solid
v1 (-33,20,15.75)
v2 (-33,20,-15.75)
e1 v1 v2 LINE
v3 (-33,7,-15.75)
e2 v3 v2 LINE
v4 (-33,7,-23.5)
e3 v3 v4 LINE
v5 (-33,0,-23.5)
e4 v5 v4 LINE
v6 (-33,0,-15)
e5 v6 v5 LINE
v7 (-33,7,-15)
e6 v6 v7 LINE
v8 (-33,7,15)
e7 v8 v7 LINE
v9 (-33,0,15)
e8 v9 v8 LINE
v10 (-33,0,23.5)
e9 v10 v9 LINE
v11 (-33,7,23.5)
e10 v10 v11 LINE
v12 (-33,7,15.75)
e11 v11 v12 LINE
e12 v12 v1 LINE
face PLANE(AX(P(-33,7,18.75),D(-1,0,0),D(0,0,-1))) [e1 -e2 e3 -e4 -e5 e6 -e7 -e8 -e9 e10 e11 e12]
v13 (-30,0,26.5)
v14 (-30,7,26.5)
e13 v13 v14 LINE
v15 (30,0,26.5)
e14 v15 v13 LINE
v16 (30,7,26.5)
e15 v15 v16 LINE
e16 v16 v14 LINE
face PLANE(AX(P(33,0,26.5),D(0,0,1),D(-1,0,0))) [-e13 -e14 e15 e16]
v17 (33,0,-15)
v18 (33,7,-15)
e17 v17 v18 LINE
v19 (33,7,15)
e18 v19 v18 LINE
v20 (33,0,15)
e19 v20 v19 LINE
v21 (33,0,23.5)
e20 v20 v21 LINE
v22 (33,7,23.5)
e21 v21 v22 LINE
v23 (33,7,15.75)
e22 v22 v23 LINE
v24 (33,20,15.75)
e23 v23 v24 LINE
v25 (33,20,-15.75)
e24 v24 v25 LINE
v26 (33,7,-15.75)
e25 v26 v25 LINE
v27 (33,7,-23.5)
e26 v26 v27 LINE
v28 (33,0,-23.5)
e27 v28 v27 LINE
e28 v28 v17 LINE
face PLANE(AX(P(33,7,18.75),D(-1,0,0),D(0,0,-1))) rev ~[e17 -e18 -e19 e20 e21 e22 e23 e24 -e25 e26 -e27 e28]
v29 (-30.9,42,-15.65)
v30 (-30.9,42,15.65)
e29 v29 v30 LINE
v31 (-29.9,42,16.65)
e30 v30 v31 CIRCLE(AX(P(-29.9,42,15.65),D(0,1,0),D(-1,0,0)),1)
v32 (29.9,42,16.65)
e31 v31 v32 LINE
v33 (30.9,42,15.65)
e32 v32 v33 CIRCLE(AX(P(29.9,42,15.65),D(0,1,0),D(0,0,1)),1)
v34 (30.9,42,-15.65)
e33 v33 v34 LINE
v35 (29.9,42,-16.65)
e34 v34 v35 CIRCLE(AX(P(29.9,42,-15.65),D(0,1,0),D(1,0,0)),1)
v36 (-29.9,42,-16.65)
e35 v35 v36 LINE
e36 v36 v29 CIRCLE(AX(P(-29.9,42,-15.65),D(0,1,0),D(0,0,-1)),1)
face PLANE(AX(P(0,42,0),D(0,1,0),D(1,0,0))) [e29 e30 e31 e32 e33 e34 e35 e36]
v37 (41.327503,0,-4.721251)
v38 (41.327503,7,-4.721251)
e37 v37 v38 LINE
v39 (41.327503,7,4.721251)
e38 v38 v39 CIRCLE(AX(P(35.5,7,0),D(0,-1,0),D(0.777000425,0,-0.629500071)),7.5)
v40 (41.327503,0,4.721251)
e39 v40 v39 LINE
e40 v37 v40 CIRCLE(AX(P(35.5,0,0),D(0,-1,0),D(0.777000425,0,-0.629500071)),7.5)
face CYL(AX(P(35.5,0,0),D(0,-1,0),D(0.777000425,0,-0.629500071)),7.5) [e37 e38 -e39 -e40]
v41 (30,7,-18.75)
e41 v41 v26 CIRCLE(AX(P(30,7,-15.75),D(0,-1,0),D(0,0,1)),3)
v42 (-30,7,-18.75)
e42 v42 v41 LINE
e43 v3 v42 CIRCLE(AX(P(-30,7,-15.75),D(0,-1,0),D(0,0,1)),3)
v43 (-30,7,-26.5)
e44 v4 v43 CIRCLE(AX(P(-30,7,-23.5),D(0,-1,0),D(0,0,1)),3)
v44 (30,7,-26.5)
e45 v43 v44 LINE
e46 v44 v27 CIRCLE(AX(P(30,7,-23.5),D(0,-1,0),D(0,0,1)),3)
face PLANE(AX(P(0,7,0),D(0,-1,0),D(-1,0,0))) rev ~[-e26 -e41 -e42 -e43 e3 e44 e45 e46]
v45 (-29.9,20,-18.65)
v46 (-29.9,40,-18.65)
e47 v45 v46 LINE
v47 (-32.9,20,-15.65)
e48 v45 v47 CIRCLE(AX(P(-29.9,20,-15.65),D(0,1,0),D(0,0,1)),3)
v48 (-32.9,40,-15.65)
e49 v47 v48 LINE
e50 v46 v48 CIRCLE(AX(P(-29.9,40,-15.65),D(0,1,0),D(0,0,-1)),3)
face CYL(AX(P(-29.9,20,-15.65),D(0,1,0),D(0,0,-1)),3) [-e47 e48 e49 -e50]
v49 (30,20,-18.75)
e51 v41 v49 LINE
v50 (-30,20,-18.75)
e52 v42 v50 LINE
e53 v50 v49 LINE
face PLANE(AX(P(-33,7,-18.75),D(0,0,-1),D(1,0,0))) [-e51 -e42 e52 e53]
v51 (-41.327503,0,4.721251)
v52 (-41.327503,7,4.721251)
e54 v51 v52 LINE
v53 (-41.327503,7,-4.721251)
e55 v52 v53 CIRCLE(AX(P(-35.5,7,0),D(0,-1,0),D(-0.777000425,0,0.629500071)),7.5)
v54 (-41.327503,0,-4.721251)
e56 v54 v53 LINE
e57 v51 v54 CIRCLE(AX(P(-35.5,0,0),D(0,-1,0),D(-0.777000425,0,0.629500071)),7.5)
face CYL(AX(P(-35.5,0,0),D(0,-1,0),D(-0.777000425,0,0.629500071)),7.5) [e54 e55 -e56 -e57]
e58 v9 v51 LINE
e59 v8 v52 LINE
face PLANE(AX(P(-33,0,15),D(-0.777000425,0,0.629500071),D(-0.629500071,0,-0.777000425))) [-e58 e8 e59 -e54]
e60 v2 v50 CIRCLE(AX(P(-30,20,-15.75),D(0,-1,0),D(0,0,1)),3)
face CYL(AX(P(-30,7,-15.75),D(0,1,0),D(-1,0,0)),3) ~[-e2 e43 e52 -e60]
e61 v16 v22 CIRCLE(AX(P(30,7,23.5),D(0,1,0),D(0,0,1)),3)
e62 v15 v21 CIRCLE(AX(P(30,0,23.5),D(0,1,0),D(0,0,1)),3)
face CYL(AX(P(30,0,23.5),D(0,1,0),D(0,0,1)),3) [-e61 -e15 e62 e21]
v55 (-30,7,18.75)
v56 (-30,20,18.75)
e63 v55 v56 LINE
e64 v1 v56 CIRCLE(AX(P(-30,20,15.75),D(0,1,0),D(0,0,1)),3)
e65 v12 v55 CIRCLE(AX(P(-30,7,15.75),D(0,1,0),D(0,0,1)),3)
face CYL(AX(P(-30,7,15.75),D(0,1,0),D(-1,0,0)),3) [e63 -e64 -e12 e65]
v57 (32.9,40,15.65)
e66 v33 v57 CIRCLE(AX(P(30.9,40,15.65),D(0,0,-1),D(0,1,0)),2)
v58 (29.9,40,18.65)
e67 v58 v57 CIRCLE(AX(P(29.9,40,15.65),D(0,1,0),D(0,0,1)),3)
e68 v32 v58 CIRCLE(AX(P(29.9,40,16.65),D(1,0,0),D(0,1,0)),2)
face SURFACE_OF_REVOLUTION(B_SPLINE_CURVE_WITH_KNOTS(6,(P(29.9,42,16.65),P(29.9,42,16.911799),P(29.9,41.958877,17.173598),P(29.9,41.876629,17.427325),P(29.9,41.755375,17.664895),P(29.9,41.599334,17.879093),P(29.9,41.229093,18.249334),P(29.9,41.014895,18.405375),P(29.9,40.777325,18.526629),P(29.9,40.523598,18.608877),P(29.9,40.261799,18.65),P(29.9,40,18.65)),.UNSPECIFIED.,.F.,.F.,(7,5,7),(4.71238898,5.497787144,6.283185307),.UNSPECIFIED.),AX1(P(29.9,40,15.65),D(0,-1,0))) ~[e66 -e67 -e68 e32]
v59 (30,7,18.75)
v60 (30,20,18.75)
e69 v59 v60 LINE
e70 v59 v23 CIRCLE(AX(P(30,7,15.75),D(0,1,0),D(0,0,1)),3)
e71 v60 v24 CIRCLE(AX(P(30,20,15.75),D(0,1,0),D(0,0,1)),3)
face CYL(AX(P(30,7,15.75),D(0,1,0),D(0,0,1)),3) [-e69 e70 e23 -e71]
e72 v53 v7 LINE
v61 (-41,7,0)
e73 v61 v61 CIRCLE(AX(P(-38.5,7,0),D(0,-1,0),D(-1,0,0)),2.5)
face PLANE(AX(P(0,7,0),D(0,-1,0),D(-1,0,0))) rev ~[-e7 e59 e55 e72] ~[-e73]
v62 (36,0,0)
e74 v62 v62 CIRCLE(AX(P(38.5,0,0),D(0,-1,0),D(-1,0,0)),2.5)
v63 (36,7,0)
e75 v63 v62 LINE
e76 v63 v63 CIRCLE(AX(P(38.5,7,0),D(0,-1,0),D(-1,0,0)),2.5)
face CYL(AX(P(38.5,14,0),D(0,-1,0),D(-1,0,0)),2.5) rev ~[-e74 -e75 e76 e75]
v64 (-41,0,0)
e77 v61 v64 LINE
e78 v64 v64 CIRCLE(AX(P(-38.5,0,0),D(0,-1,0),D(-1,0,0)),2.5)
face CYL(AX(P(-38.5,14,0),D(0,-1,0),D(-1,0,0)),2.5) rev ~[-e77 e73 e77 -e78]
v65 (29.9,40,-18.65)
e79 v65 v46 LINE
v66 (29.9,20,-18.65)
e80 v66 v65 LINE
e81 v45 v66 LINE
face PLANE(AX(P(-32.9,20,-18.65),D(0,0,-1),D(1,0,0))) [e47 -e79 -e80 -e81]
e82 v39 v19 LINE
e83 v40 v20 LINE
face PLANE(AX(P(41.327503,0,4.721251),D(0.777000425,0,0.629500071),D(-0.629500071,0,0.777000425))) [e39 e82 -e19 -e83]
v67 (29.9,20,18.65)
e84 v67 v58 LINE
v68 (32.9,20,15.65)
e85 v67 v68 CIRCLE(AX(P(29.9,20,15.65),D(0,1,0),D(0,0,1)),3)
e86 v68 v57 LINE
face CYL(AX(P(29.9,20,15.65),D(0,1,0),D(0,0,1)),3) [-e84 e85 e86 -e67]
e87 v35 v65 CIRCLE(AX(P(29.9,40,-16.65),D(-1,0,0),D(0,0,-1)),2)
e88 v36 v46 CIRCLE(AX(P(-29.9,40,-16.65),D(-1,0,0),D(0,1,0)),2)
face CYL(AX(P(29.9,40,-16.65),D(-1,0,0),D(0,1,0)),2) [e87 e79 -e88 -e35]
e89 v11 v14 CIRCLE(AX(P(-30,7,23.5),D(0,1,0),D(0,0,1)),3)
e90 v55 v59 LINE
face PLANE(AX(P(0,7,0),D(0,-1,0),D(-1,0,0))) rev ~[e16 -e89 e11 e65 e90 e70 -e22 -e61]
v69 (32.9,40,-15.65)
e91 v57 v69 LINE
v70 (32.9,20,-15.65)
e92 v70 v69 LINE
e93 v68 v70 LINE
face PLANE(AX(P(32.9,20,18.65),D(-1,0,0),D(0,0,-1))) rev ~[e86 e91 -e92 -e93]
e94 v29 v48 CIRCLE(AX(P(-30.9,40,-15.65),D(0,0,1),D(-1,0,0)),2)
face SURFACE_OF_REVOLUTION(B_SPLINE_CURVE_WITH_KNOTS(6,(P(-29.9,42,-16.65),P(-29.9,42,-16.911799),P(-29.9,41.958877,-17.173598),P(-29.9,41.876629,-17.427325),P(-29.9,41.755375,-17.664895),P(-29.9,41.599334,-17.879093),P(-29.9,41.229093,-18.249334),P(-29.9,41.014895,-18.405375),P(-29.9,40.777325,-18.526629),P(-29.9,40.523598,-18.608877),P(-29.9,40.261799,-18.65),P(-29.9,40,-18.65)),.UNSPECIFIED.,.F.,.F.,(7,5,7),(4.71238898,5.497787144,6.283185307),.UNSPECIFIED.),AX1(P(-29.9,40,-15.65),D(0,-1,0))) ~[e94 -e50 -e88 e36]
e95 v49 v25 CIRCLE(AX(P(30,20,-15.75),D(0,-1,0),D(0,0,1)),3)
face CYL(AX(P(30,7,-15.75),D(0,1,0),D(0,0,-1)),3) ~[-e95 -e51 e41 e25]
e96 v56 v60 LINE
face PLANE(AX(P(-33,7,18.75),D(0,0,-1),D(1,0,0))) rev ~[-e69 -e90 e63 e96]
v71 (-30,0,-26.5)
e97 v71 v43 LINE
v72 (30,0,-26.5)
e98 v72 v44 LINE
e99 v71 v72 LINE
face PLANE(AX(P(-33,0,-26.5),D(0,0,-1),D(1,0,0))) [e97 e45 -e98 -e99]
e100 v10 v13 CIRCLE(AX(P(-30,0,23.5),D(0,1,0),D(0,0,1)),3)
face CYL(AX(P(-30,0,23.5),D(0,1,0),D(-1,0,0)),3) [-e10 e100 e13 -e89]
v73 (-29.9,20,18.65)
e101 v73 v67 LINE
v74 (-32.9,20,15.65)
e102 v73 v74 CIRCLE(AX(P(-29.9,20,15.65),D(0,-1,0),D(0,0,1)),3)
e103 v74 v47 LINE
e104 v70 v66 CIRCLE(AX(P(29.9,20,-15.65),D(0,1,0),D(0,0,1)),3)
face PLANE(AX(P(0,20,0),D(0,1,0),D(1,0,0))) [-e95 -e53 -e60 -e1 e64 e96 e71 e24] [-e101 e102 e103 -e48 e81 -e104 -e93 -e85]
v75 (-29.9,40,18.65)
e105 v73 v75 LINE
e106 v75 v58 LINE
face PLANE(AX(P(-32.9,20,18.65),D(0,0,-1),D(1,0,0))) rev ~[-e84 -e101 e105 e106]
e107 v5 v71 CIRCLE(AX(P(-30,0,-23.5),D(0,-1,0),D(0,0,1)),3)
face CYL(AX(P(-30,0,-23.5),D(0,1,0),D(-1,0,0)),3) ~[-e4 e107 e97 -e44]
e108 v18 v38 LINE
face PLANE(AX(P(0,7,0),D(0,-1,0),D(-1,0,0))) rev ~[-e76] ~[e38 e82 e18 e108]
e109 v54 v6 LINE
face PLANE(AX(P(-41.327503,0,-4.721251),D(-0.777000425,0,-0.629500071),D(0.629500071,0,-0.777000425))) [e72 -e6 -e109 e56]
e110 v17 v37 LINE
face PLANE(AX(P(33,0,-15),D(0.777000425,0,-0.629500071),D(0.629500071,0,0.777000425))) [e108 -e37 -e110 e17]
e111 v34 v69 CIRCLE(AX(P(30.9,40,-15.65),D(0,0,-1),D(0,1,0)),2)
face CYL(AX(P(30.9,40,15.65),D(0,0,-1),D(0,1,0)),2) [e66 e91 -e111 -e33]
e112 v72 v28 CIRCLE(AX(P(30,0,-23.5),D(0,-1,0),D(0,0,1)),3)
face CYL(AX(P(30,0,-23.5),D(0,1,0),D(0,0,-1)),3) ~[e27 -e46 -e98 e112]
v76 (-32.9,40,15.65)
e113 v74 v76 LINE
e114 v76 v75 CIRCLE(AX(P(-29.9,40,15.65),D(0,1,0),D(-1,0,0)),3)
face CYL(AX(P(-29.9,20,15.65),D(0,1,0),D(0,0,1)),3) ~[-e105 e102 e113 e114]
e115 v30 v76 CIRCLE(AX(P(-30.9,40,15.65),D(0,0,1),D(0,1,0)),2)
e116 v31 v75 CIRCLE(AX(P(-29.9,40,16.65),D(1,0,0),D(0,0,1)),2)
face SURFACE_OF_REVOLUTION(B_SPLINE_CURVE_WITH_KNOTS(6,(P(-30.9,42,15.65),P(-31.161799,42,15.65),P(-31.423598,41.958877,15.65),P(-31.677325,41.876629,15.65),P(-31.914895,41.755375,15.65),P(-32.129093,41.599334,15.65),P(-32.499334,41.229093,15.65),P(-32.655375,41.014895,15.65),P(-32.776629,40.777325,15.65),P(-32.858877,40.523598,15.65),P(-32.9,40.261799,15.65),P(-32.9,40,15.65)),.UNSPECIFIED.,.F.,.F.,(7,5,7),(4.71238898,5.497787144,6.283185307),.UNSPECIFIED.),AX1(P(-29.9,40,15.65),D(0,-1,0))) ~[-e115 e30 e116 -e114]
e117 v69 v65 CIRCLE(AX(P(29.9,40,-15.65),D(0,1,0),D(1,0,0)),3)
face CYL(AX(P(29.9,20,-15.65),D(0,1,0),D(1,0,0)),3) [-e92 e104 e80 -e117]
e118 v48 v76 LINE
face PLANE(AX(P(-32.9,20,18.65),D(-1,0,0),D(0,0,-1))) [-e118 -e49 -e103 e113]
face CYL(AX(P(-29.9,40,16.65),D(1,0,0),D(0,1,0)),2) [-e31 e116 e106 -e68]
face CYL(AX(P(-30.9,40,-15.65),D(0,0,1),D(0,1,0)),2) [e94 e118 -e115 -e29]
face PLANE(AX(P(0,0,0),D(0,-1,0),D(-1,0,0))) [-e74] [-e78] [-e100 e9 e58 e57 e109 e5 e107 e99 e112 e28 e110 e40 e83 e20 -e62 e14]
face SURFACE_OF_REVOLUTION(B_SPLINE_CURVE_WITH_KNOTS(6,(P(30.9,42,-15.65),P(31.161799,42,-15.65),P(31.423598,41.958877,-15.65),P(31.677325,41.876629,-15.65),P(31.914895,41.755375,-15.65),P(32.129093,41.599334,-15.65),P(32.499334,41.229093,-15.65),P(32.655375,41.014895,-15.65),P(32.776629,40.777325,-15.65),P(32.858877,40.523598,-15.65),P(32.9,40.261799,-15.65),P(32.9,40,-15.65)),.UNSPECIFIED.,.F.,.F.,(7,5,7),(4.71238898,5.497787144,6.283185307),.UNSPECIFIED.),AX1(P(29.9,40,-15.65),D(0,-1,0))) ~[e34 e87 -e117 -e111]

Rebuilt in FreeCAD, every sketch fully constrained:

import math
import FreeCAD as App
import Part
import Sketcher
from FreeCAD import Vector
Q = App.Units.Quantity


def edges_at(feature, points):
    """Names of the edges that pass closest to the given points."""
    edges = feature.Shape.Edges
    near = lambda p: min(range(len(edges)), key=lambda i: edges[i].distToShape(Part.Vertex(*p))[0])
    return sorted({f"Edge{near(p) + 1}" for p in points})

doc = App.newDocument("Part")
body = doc.addObject("PartDesign::Body", "Body")

# Sketch on XZ plane
sketch1 = body.newObject("Sketcher::SketchObject", "Sketch")
sketch1.AttachmentSupport = (doc.getObject("XZ_Plane"), [""])
sketch1.MapMode = "FlatFace"
sketch1.addGeometry(Part.LineSegment(Vector(-33, -15, 0), Vector(-41, -5, 0)), False)
sketch1.addGeometry(Part.ArcOfCircle(Part.Circle(Vector(-35, 0, 0), Vector(0, 0, 1), 8), math.radians(141), math.radians(219)), False)
sketch1.addGeometry(Part.LineSegment(Vector(-41, 5, 0), Vector(-33, 15, 0)), False)
sketch1.addGeometry(Part.LineSegment(Vector(-33, 15, 0), Vector(-33, 26, 0)), False)
sketch1.addGeometry(Part.LineSegment(Vector(-33, 26, 0), Vector(33, 26, 0)), False)
sketch1.addGeometry(Part.LineSegment(Vector(33, 26, 0), Vector(33, 15, 0)), False)
sketch1.addGeometry(Part.LineSegment(Vector(33, 15, 0), Vector(41, 5, 0)), False)
sketch1.addGeometry(Part.ArcOfCircle(Part.Circle(Vector(35, 0, 0), Vector(0, 0, 1), 8), math.radians(-39), math.radians(39)), False)
sketch1.addGeometry(Part.LineSegment(Vector(41, -5, 0), Vector(33, -15, 0)), False)
sketch1.addGeometry(Part.LineSegment(Vector(33, -15, 0), Vector(33, -26, 0)), False)
sketch1.addGeometry(Part.LineSegment(Vector(33, -26, 0), Vector(-33, -26, 0)), False)
sketch1.addGeometry(Part.LineSegment(Vector(-33, -26, 0), Vector(-33, -15, 0)), False)
sketch1.addConstraint(Sketcher.Constraint("Tangent", 0, 2, 1, 2))
sketch1.addConstraint(Sketcher.Constraint("Tangent", 1, 1, 2, 1))
sketch1.addConstraint(Sketcher.Constraint("Coincident", 2, 2, 3, 1))
sketch1.addConstraint(Sketcher.Constraint("Coincident", 3, 2, 4, 1))
sketch1.addConstraint(Sketcher.Constraint("Coincident", 4, 2, 5, 1))
sketch1.addConstraint(Sketcher.Constraint("Coincident", 5, 2, 6, 1))
sketch1.addConstraint(Sketcher.Constraint("Tangent", 6, 2, 7, 2))
sketch1.addConstraint(Sketcher.Constraint("Tangent", 7, 1, 8, 1))
sketch1.addConstraint(Sketcher.Constraint("Coincident", 8, 2, 9, 1))
sketch1.addConstraint(Sketcher.Constraint("Coincident", 9, 2, 10, 1))
sketch1.addConstraint(Sketcher.Constraint("Coincident", 10, 2, 11, 1))
sketch1.addConstraint(Sketcher.Constraint("Coincident", 11, 2, 0, 1))
sketch1.addConstraint(Sketcher.Constraint("Vertical", 3))
sketch1.addConstraint(Sketcher.Constraint("Horizontal", 4))
sketch1.addConstraint(Sketcher.Constraint("Vertical", 5))
sketch1.addConstraint(Sketcher.Constraint("Vertical", 9))
sketch1.addConstraint(Sketcher.Constraint("Horizontal", 10))
sketch1.addConstraint(Sketcher.Constraint("Vertical", 11))
sketch1.addConstraint(Sketcher.Constraint("Equal", 1, 7))
sketch1.addConstraint(Sketcher.Constraint("Symmetric", 1, 3, 7, 3, -1, 1))
sketch1.addConstraint(Sketcher.Constraint("Symmetric", 2, 2, 8, 2, -1, 1))
sketch1.addConstraint(Sketcher.Constraint("Symmetric", 4, 2, 10, 2, -1, 1))
sketch1.addConstraint(Sketcher.Constraint("Symmetric", 2, 2, 5, 2, -2))
sketch1.addConstraint(Sketcher.Constraint("Symmetric", 0, 2, 7, 1, -2))
sketch1.addConstraint(Sketcher.Constraint("Radius", 1, Q("7.5 mm")))
sketch1.addConstraint(Sketcher.Constraint("DistanceX", 4, 1, 4, 2, Q("66 mm")))
sketch1.addConstraint(Sketcher.Constraint("DistanceY", 3, 1, 3, 2, Q("11.5 mm")))
sketch1.addConstraint(Sketcher.Constraint("DistanceY", -1, 1, 2, 2, Q("15 mm")))
sketch1.addConstraint(Sketcher.Constraint("DistanceX", 1, 3, 7, 3, Q("71 mm")))
pad1 = body.newObject("PartDesign::Pad", "Pad")
pad1.Profile = sketch1
pad1.Length = 7
pad1.Reversed = True

# Sketch on XZ plane
sketch2 = body.newObject("Sketcher::SketchObject", "Sketch001")
sketch2.AttachmentSupport = (doc.getObject("XZ_Plane"), [""])
sketch2.MapMode = "FlatFace"
sketch2.AttachmentOffset = App.Placement(Vector(0, 0, -7), App.Rotation())
sketch2.addGeometry(Part.Circle(Vector(-38.5, 0, 0), Vector(0, 0, 1), 2.5), False)
sketch2.addGeometry(Part.Circle(Vector(38.5, 0, 0), Vector(0, 0, 1), 2.5), False)
sketch2.addConstraint(Sketcher.Constraint("Equal", 0, 1))
sketch2.addConstraint(Sketcher.Constraint("Symmetric", 0, 3, 1, 3, -1, 1))
sketch2.addConstraint(Sketcher.Constraint("PointOnObject", 0, 3, -1))
sketch2.addConstraint(Sketcher.Constraint("Diameter", 0, Q("5 mm")))
sketch2.addConstraint(Sketcher.Constraint("DistanceX", 0, 3, 1, 3, Q("77 mm")))
doc.recompute()
hole = body.newObject("PartDesign::Hole", "Hole")
hole.Profile = sketch2
hole.ThreadType = "None"
hole.Diameter = 5
hole.DepthType = "Dimension"
hole.Depth = 7
hole.DrillPoint = "Flat"
hole.Reversed = True

# Sketch on XZ plane
sketch3 = body.newObject("Sketcher::SketchObject", "Sketch002")
sketch3.AttachmentSupport = (doc.getObject("XZ_Plane"), [""])
sketch3.MapMode = "FlatFace"
sketch3.AttachmentOffset = App.Placement(Vector(0, 0, -7), App.Rotation())
sketch3.addGeometry(Part.LineSegment(Vector(-33, -19, 0), Vector(-33, 19, 0)), False)
sketch3.addGeometry(Part.LineSegment(Vector(-33, 19, 0), Vector(33, 19, 0)), False)
sketch3.addGeometry(Part.LineSegment(Vector(33, 19, 0), Vector(33, -19, 0)), False)
sketch3.addGeometry(Part.LineSegment(Vector(33, -19, 0), Vector(-33, -19, 0)), False)
sketch3.addConstraint(Sketcher.Constraint("Coincident", 0, 2, 1, 1))
sketch3.addConstraint(Sketcher.Constraint("Coincident", 1, 2, 2, 1))
sketch3.addConstraint(Sketcher.Constraint("Coincident", 2, 2, 3, 1))
sketch3.addConstraint(Sketcher.Constraint("Coincident", 3, 2, 0, 1))
sketch3.addConstraint(Sketcher.Constraint("Vertical", 0))
sketch3.addConstraint(Sketcher.Constraint("Horizontal", 1))
sketch3.addConstraint(Sketcher.Constraint("Vertical", 2))
sketch3.addConstraint(Sketcher.Constraint("Horizontal", 3))
sketch3.addConstraint(Sketcher.Constraint("Symmetric", 0, 2, 2, 2, -1, 1))
sketch3.addConstraint(Sketcher.Constraint("DistanceX", 1, 1, 1, 2, Q("66 mm")))
sketch3.addConstraint(Sketcher.Constraint("DistanceY", 0, 1, 0, 2, Q("37.5 mm")))
pad2 = body.newObject("PartDesign::Pad", "Pad001")
pad2.Profile = sketch3
pad2.Length = 13
pad2.Reversed = True

# Sketch on XZ plane
sketch4 = body.newObject("Sketcher::SketchObject", "Sketch003")
sketch4.AttachmentSupport = (doc.getObject("XZ_Plane"), [""])
sketch4.MapMode = "FlatFace"
sketch4.AttachmentOffset = App.Placement(Vector(0, 0, -20), App.Rotation())
sketch4.addGeometry(Part.LineSegment(Vector(-33, -19, 0), Vector(-33, 19, 0)), False)
sketch4.addGeometry(Part.LineSegment(Vector(-33, 19, 0), Vector(33, 19, 0)), False)
sketch4.addGeometry(Part.LineSegment(Vector(33, 19, 0), Vector(33, -19, 0)), False)
sketch4.addGeometry(Part.LineSegment(Vector(33, -19, 0), Vector(-33, -19, 0)), False)
sketch4.addConstraint(Sketcher.Constraint("Coincident", 0, 2, 1, 1))
sketch4.addConstraint(Sketcher.Constraint("Coincident", 1, 2, 2, 1))
sketch4.addConstraint(Sketcher.Constraint("Coincident", 2, 2, 3, 1))
sketch4.addConstraint(Sketcher.Constraint("Coincident", 3, 2, 0, 1))
sketch4.addConstraint(Sketcher.Constraint("Vertical", 0))
sketch4.addConstraint(Sketcher.Constraint("Horizontal", 1))
sketch4.addConstraint(Sketcher.Constraint("Vertical", 2))
sketch4.addConstraint(Sketcher.Constraint("Horizontal", 3))
sketch4.addConstraint(Sketcher.Constraint("Symmetric", 0, 2, 2, 2, -1, 1))
sketch4.addConstraint(Sketcher.Constraint("DistanceX", 1, 1, 1, 2, Q("65.8 mm")))
sketch4.addConstraint(Sketcher.Constraint("DistanceY", 0, 1, 0, 2, Q("37.3 mm")))
pad3 = body.newObject("PartDesign::Pad", "Pad002")
pad3.Profile = sketch4
pad3.Length = 22
pad3.Reversed = True
doc.recompute()

fillet = body.newObject("PartDesign::Fillet", "Fillet")
fillet.Base = (pad3, edges_at(pad3, [
    (-33, 3.5, -26.5),
    (33, 3.5, -26.5),
    (33, 3.5, 26.5),
    (-33, 3.5, 26.5),
    (33, 13.5, 18.75),
    (33, 13.5, -18.75),
    (-33, 13.5, -18.75),
    (-33, 13.5, 18.75),
    (32.9, 31, 18.65),
    (32.9, 31, -18.65),
    (-32.9, 31, -18.65),
    (-32.9, 31, 18.65),
]))
fillet.Radius = 3
doc.recompute()

fillet2 = body.newObject("PartDesign::Fillet", "Fillet001")
fillet2.Base = (fillet, edges_at(fillet, [
    (32.9, 42, 0),
    (0, 42, 18.65),
    (0, 42, -18.65),
    (-32.9, 42, 0),
    (-32.021, 42, 17.771),
    (-32.021, 42, -17.771),
    (32.021, 42, -17.771),
    (32.021, 42, 17.771),
]))
fillet2.Radius = 2

doc.recompute()
